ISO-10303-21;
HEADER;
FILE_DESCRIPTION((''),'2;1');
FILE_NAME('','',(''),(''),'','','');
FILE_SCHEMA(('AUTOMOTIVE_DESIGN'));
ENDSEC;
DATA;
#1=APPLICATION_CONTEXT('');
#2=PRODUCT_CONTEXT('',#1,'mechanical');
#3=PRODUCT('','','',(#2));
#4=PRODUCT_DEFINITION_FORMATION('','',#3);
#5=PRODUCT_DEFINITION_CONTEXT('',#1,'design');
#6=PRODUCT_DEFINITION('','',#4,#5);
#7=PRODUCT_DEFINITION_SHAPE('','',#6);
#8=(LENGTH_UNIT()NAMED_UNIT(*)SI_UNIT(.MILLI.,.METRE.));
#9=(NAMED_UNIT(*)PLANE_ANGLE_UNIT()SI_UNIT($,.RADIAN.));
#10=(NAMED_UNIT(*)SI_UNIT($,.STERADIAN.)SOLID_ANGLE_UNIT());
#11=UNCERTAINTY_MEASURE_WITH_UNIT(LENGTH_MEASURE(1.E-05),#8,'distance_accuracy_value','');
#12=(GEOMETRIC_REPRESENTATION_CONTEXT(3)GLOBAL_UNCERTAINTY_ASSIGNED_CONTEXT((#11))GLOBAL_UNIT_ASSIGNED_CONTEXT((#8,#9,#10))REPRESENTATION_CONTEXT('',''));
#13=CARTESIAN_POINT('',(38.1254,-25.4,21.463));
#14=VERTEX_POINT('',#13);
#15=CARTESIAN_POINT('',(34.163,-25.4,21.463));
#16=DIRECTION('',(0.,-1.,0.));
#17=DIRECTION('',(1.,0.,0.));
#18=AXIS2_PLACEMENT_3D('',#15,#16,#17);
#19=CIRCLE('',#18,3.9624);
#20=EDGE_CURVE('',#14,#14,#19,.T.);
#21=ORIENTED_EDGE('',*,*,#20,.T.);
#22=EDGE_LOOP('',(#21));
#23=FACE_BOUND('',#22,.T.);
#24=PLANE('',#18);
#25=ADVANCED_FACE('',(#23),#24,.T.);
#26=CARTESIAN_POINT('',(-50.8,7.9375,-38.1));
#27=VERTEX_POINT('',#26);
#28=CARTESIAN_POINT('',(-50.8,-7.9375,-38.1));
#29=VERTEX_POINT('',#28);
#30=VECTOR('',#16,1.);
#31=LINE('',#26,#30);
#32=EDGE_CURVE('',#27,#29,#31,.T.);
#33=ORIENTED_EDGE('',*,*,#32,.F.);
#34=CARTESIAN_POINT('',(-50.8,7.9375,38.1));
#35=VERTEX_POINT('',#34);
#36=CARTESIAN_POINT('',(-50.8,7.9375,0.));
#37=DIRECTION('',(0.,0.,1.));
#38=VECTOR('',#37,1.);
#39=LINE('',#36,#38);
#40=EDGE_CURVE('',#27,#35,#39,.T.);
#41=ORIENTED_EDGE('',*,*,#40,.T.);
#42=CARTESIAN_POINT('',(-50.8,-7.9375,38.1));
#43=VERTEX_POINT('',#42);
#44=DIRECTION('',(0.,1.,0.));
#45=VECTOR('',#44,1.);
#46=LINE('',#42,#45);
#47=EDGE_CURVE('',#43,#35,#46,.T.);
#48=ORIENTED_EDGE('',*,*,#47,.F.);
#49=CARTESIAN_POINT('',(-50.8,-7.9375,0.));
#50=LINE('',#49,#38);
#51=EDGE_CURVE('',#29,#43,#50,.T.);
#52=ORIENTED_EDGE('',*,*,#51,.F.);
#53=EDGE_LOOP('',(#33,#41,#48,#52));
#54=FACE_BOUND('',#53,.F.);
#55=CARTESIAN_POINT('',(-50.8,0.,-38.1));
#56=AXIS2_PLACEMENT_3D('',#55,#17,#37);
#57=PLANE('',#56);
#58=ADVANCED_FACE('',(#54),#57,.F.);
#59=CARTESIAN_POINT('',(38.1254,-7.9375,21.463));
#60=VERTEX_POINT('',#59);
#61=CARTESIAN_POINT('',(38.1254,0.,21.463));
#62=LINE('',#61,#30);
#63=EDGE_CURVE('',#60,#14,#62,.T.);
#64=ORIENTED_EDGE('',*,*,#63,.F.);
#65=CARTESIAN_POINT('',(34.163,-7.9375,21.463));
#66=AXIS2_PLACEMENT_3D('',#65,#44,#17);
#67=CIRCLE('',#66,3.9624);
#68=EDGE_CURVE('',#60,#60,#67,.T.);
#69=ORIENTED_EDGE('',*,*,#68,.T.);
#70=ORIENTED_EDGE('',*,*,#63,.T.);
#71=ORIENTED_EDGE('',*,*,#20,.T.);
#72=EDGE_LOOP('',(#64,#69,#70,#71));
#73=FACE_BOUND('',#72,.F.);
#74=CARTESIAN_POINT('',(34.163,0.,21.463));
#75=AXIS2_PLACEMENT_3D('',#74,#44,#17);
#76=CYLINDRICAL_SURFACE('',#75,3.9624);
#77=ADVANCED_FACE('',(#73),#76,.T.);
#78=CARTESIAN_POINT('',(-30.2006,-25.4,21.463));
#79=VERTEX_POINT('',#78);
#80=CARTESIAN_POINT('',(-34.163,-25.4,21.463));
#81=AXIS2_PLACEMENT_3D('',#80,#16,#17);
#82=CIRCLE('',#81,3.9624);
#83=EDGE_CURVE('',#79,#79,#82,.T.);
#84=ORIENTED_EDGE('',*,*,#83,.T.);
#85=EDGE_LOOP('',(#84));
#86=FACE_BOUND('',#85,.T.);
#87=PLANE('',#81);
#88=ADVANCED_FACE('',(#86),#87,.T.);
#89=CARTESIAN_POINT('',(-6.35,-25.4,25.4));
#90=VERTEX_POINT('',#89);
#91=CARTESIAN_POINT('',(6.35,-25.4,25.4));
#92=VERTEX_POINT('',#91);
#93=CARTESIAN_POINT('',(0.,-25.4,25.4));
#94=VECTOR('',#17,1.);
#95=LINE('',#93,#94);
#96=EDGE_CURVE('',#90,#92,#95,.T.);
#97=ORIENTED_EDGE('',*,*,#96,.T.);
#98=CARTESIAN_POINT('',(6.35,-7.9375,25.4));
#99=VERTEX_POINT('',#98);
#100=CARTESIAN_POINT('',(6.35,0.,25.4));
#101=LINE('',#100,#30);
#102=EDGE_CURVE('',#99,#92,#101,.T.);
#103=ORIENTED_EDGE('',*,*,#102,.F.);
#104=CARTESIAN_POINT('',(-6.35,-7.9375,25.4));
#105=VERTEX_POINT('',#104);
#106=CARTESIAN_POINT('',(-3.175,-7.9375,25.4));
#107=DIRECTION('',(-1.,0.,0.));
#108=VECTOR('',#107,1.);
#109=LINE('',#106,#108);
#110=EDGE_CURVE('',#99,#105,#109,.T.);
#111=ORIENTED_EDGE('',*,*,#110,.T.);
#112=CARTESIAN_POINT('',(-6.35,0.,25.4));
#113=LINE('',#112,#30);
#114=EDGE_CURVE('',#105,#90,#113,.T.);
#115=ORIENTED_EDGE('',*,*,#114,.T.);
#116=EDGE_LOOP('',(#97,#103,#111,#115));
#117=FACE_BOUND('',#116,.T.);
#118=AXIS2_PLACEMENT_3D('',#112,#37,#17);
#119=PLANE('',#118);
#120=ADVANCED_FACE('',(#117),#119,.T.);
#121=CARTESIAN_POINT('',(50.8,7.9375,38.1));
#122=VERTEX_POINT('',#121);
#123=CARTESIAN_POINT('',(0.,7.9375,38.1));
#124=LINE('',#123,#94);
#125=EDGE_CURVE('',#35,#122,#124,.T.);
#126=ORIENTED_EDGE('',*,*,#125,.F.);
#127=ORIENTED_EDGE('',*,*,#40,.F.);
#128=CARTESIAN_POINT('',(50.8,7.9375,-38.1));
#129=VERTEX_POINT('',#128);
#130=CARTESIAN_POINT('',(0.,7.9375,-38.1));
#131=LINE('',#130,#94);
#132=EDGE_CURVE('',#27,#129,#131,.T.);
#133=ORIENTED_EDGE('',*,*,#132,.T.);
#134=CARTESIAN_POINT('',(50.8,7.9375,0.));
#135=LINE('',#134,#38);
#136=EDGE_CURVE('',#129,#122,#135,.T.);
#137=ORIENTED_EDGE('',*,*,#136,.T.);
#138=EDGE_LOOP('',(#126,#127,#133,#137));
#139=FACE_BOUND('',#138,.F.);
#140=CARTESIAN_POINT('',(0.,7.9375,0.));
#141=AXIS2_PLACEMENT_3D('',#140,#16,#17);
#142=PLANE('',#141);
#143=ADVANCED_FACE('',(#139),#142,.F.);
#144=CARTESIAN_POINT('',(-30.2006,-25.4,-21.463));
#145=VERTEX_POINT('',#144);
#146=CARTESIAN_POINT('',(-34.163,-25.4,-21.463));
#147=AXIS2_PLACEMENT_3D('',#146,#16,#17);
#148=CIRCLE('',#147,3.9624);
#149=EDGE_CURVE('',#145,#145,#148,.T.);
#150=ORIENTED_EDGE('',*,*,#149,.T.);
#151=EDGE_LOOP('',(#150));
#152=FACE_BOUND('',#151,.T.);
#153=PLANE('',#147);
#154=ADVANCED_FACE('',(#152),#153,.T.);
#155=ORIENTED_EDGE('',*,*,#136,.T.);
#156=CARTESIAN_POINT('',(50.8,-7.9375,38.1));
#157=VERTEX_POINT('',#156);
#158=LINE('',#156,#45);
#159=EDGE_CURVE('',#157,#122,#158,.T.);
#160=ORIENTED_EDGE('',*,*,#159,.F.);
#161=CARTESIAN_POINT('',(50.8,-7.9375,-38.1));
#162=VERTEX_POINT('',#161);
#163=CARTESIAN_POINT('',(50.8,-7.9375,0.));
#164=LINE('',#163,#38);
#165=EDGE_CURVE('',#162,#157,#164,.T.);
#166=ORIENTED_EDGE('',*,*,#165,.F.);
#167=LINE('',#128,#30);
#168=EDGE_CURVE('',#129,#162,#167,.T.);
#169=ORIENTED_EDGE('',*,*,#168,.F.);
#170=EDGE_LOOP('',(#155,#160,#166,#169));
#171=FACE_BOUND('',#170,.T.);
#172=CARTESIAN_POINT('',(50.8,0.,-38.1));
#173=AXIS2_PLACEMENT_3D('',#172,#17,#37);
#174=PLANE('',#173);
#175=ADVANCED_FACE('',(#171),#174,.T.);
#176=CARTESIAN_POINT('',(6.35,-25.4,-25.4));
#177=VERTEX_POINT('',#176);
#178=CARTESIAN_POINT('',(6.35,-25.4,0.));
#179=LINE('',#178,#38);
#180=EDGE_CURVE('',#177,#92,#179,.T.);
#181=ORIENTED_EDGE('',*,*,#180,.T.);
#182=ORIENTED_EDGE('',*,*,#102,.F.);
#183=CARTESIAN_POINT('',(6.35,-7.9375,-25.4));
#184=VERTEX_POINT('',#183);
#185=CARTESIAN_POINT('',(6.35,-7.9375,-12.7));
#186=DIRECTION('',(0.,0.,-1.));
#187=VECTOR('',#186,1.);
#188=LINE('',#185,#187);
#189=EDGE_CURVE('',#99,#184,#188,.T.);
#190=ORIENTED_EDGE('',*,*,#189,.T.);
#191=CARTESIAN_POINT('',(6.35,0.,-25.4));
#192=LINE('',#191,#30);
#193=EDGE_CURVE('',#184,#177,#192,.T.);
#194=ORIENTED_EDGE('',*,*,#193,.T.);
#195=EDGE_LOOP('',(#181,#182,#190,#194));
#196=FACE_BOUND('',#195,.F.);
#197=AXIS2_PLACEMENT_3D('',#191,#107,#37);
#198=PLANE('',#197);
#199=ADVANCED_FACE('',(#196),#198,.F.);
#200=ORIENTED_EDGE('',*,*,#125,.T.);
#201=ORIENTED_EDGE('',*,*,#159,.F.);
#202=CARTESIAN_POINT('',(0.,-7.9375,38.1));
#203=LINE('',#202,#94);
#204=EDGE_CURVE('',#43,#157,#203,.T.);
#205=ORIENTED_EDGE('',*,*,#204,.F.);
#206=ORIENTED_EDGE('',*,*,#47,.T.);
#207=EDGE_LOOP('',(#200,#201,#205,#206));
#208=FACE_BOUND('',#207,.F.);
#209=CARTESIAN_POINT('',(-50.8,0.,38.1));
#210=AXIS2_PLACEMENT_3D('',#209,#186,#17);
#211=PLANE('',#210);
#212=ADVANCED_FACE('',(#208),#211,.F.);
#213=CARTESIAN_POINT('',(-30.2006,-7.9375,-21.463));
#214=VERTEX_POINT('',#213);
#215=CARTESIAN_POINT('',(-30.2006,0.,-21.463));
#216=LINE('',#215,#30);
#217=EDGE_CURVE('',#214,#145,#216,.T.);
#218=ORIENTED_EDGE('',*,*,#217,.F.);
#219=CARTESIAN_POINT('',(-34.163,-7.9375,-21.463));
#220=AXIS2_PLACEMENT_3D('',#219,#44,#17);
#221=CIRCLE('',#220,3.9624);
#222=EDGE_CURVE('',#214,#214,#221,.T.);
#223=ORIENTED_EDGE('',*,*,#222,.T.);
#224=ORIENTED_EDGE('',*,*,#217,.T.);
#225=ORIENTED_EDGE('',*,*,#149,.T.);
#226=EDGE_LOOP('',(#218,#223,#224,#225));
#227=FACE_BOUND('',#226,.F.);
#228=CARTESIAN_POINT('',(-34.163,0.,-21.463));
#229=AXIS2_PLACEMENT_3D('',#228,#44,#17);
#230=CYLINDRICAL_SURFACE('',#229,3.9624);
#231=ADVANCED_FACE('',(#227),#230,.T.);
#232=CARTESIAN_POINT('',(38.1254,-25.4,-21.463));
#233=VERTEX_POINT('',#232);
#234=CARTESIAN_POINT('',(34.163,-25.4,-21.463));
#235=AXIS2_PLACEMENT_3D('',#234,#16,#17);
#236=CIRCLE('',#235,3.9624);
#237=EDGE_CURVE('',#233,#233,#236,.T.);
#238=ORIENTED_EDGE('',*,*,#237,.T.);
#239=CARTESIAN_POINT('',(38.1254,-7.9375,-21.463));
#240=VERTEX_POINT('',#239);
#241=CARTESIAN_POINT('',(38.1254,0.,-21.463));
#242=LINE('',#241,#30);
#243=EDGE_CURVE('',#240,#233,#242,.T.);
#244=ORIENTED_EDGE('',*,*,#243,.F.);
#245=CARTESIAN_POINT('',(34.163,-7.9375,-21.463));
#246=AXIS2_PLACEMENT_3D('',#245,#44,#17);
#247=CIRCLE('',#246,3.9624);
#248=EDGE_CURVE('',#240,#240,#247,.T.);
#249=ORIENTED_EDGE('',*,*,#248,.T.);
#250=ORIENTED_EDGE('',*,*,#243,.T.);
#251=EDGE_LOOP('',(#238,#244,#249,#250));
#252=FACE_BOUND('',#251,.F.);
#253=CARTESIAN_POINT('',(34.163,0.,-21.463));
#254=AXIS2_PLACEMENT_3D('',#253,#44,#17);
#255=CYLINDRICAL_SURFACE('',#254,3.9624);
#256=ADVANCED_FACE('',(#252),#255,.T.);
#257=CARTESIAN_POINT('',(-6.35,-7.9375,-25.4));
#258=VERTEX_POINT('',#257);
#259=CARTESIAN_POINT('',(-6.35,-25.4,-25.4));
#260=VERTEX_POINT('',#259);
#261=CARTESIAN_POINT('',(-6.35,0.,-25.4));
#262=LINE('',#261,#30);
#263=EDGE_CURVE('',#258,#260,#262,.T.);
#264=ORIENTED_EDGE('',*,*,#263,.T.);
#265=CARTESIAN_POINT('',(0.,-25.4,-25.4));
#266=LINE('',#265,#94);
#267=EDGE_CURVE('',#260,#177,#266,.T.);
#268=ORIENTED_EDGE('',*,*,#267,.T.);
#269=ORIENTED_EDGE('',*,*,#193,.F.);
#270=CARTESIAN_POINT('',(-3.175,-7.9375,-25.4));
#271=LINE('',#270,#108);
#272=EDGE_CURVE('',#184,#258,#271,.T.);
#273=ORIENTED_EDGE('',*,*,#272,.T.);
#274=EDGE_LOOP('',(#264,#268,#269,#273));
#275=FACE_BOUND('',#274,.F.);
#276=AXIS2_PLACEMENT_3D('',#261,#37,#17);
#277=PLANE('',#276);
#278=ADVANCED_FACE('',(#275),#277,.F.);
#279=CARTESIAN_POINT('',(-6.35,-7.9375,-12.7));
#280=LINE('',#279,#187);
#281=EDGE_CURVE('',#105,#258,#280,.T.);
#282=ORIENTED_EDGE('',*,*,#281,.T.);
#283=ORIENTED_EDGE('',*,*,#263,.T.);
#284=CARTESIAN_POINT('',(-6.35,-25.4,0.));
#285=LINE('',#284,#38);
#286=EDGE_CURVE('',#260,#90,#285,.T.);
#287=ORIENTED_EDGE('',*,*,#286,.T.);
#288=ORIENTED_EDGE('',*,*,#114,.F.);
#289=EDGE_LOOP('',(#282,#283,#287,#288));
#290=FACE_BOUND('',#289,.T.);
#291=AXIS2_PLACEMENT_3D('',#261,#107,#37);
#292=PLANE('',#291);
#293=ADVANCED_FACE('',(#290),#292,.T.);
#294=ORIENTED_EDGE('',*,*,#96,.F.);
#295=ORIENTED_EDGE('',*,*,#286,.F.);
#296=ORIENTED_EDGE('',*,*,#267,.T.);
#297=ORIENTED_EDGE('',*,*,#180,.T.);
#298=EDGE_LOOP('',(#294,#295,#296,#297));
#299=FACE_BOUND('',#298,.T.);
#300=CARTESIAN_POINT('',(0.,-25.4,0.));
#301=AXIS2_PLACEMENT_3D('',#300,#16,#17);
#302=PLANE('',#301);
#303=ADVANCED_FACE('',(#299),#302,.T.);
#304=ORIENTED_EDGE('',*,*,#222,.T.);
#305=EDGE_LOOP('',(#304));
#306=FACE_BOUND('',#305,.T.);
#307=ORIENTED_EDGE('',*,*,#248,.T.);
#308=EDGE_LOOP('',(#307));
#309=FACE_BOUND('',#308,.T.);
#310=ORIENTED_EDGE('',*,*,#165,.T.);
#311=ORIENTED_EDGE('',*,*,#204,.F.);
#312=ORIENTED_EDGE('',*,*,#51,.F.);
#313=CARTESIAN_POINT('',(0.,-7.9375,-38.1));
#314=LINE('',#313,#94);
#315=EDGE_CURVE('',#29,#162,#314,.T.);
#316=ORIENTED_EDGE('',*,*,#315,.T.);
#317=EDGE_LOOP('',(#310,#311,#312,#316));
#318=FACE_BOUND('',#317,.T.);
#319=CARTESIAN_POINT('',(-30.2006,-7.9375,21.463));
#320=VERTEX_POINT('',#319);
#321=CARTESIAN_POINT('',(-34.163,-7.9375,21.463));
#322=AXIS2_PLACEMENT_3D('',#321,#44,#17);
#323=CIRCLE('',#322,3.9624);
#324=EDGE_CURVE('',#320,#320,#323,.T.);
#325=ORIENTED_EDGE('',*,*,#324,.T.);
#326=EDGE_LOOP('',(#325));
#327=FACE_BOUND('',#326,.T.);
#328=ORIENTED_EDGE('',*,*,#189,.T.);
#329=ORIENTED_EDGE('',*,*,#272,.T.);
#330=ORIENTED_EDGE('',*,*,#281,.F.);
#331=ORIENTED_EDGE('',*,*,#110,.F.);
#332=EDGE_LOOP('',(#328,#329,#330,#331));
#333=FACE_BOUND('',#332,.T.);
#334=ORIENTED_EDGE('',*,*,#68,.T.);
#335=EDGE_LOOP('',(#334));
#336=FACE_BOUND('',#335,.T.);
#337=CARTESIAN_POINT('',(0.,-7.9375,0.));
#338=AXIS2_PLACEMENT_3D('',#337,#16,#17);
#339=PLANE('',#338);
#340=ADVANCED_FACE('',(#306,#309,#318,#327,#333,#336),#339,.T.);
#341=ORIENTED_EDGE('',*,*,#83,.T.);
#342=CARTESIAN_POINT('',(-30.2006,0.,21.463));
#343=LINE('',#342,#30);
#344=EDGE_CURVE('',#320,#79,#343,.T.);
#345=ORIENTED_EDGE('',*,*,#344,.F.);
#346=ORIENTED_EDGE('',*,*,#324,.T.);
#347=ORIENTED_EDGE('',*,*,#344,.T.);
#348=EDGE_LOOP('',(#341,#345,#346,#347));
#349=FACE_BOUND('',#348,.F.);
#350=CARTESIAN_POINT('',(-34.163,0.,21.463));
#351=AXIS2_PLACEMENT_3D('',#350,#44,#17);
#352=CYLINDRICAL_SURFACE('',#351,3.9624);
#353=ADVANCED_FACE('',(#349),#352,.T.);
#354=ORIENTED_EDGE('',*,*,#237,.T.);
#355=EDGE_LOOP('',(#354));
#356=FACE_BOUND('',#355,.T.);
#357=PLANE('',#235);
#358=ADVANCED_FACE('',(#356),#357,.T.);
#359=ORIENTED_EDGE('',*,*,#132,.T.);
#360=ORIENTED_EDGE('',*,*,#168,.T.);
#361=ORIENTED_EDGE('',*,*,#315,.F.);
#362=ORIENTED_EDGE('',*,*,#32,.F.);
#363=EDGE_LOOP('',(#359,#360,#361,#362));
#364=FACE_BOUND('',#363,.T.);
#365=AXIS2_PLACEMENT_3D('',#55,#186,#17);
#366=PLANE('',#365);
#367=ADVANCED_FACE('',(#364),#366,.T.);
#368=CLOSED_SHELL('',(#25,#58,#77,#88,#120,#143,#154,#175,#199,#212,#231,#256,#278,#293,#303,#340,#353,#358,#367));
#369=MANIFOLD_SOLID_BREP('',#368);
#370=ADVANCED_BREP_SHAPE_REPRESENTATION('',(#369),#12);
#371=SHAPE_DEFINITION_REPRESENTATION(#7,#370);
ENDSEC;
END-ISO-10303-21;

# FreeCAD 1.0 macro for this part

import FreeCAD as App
import Part
import Sketcher
from FreeCAD import Vector
Q = App.Units.Quantity

doc = App.newDocument("Part")
body = doc.addObject("PartDesign::Body", "Body")

sketch1 = body.newObject("Sketcher::SketchObject", "Sketch")
sketch1.AttachmentSupport = (doc.getObject("XZ_Plane"), [""])
sketch1.MapMode = "FlatFace"
sketch1.addGeometry([
    Part.LineSegment(Vector(-51, 38, 0), Vector(-51, -38, 0)),
    Part.LineSegment(Vector(-51, -38, 0), Vector(51, -38, 0)),
    Part.LineSegment(Vector(51, -38, 0), Vector(51, 38, 0)),
    Part.LineSegment(Vector(51, 38, 0), Vector(-51, 38, 0)),
], False)
sketch1.addConstraint([
    Sketcher.Constraint("Coincident", 0, 2, 1, 1),
    Sketcher.Constraint("Coincident", 1, 2, 2, 1),
    Sketcher.Constraint("Coincident", 2, 2, 3, 1),
    Sketcher.Constraint("Coincident", 3, 2, 0, 1),
    Sketcher.Constraint("Vertical", 0),
    Sketcher.Constraint("Horizontal", 1),
    Sketcher.Constraint("Vertical", 2),
    Sketcher.Constraint("Horizontal", 3),
    Sketcher.Constraint("Symmetric", 0, 2, 2, 2, -1, 1),
    Sketcher.Constraint("DistanceX", 1, 1, 1, 2, Q("4 in")),
    Sketcher.Constraint("DistanceY", 0, 2, 0, 1, Q("3 in")),
])
pad1 = body.newObject("PartDesign::Pad", "Pad")
pad1.Profile = sketch1
pad1.Length = Q("0.625 in")
pad1.Midplane = True

sketch2 = body.newObject("Sketcher::SketchObject", "Sketch001")
sketch2.AttachmentSupport = (doc.getObject("XZ_Plane"), [""])
sketch2.MapMode = "FlatFace"
sketch2.addGeometry([
    Part.Circle(Vector(34.2, 21.5, 0), Vector(0, 0, 1), 4),
    Part.Circle(Vector(34.2, -21.5, 0), Vector(0, 0, 1), 4),
    Part.LineSegment(Vector(-6.3, 25.4, 0), Vector(-6.3, -25.4, 0)),
    Part.LineSegment(Vector(-6.3, -25.4, 0), Vector(6.3, -25.4, 0)),
    Part.LineSegment(Vector(6.3, -25.4, 0), Vector(6.3, 25.4, 0)),
    Part.LineSegment(Vector(6.3, 25.4, 0), Vector(-6.3, 25.4, 0)),
    Part.Circle(Vector(-34.2, 21.5, 0), Vector(0, 0, 1), 4),
    Part.Circle(Vector(-34.2, -21.5, 0), Vector(0, 0, 1), 4),
], False)
sketch2.addConstraint([
    Sketcher.Constraint("Coincident", 2, 2, 3, 1),
    Sketcher.Constraint("Coincident", 3, 2, 4, 1),
    Sketcher.Constraint("Coincident", 4, 2, 5, 1),
    Sketcher.Constraint("Coincident", 5, 2, 2, 1),
    Sketcher.Constraint("Vertical", 2),
    Sketcher.Constraint("Horizontal", 3),
    Sketcher.Constraint("Vertical", 4),
    Sketcher.Constraint("Horizontal", 5),
    Sketcher.Constraint("Equal", 0, 1),
    Sketcher.Constraint("Equal", 1, 6),
    Sketcher.Constraint("Equal", 6, 7),
    Sketcher.Constraint("Symmetric", 1, 3, 6, 3, -1, 1),
    Sketcher.Constraint("Symmetric", 0, 3, 7, 3, -1, 1),
    Sketcher.Constraint("Symmetric", 2, 2, 4, 2, -1, 1),
    Sketcher.Constraint("Symmetric", 0, 3, 6, 3, -2),
    Sketcher.Constraint("DistanceY", 2, 2, 2, 1, Q("2 in")),
    Sketcher.Constraint("Diameter", 0, Q("0.312 in")),
    Sketcher.Constraint("DistanceX", 3, 1, 3, 2, Q("0.5 in")),
    Sketcher.Constraint("DistanceY", 1, 3, 0, 3, Q("1.69 in")),
    Sketcher.Constraint("DistanceX", 6, 3, 0, 3, Q("2.69 in")),
])
pad2 = body.newObject("PartDesign::Pad", "Pad001")
pad2.Profile = sketch2
pad2.Length = Q("1 in")

doc.recompute()
